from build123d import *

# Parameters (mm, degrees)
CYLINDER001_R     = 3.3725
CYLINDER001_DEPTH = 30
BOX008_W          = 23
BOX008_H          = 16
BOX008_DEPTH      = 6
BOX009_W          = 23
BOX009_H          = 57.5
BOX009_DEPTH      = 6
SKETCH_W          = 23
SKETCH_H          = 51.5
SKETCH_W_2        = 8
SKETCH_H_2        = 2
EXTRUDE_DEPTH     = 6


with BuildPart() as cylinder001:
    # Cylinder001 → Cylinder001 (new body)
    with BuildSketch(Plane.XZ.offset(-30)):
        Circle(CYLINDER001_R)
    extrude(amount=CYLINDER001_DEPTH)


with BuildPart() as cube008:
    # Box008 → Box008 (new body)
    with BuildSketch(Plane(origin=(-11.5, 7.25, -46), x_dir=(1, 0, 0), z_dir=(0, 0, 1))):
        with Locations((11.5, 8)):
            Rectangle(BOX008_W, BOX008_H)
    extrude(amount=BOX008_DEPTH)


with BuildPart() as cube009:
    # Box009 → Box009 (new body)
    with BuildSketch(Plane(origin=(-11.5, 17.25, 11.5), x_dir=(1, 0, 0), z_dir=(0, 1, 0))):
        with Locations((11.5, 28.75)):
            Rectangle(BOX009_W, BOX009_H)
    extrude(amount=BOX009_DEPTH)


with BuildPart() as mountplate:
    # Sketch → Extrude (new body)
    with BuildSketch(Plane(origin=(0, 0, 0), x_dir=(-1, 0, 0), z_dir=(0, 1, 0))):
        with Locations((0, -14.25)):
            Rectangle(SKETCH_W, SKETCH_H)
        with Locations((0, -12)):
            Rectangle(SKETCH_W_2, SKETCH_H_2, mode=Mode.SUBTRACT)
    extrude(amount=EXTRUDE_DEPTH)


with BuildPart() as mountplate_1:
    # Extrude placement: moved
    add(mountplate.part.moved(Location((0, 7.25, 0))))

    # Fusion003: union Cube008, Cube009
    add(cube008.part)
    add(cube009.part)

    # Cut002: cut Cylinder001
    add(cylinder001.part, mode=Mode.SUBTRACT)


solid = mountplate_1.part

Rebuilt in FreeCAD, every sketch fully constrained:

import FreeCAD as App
import Part
import Sketcher
from FreeCAD import Vector


def add_polygon(sketch, points):
    """Adds a closed chain of lines whose ends are joined by coincident constraints."""
    first, n = sketch.GeometryCount, len(points)
    for a, b in zip(points, points[1:] + points[:1]):
        sketch.addGeometry(Part.LineSegment(App.Vector(*a, 0), App.Vector(*b, 0)), False)
    for i in range(n):
        sketch.addConstraint(Sketcher.Constraint("Coincident", first + i, 2, first + (i + 1) % n, 1))

doc = App.newDocument("Part")
body = doc.addObject("PartDesign::Body", "Body")

# Sketch on XZ plane
sketch1 = body.newObject("Sketcher::SketchObject", "Sketch")
sketch1.AttachmentSupport = (doc.getObject("XZ_Plane"), [""])
sketch1.MapMode = "FlatFace"
sketch1.AttachmentOffset = App.Placement(Vector(0, 0, -30), App.Rotation())
sketch1.addGeometry(Part.Circle(Vector(0, 0, 0), Vector(0, 0, 1), 3.4), False)
sketch1.addConstraint(Sketcher.Constraint("Coincident", 0, 3, -1, 1))
sketch1.addConstraint(Sketcher.Constraint("Diameter", 0, 6.745))
pad1 = body.newObject("PartDesign::Pad", "Pad")
pad1.Profile = sketch1
pad1.Length = 30
body2 = doc.addObject("PartDesign::Body", "Body001")

# Sketch on XY plane
sketch2 = body2.newObject("Sketcher::SketchObject", "Sketch001")
sketch2.AttachmentSupport = (doc.getObject("XY_Plane001"), [""])
sketch2.MapMode = "FlatFace"
sketch2.AttachmentOffset = App.Placement(Vector(0, 0, -46), App.Rotation())
add_polygon(sketch2, [(-12, 23), (-12, 7), (12, 7), (12, 23)])  # lines 0-3
sketch2.addConstraint(Sketcher.Constraint("Vertical", 0))
sketch2.addConstraint(Sketcher.Constraint("Horizontal", 1))
sketch2.addConstraint(Sketcher.Constraint("Vertical", 2))
sketch2.addConstraint(Sketcher.Constraint("Horizontal", 3))
sketch2.addConstraint(Sketcher.Constraint("DistanceX", 1, 1, 1, 2, 23.0))
sketch2.addConstraint(Sketcher.Constraint("DistanceY", 0, 2, 0, 1, 16.0))
sketch2.addConstraint(Sketcher.Constraint("DistanceX", 0, 2, -1, 1, 11.5))
sketch2.addConstraint(Sketcher.Constraint("DistanceY", -1, 1, 0, 2, 7.25))
pad2 = body2.newObject("PartDesign::Pad", "Pad001")
pad2.Profile = sketch2
pad2.Length = 6
body3 = doc.addObject("PartDesign::Body", "Body002")

# Sketch on XZ plane
sketch3 = body3.newObject("Sketcher::SketchObject", "Sketch002")
sketch3.AttachmentSupport = (doc.getObject("XZ_Plane002"), [""])
sketch3.MapMode = "FlatFace"
sketch3.AttachmentOffset = App.Placement(Vector(0, 0, -17.25), App.Rotation())
add_polygon(sketch3, [(-12, -46), (-12, 12), (12, 12), (12, -46)])  # lines 0-3
sketch3.addConstraint(Sketcher.Constraint("Vertical", 0))
sketch3.addConstraint(Sketcher.Constraint("Horizontal", 1))
sketch3.addConstraint(Sketcher.Constraint("Vertical", 2))
sketch3.addConstraint(Sketcher.Constraint("Horizontal", 3))
sketch3.addConstraint(Sketcher.Constraint("DistanceX", 1, 1, 1, 2, 23.0))
sketch3.addConstraint(Sketcher.Constraint("DistanceY", 0, 1, 0, 2, 57.5))
sketch3.addConstraint(Sketcher.Constraint("DistanceY", 2, 2, -1, 1, 46.0))
sketch3.addConstraint(Sketcher.Constraint("DistanceX", 0, 2, -1, 1, 11.5))
pad3 = body3.newObject("PartDesign::Pad", "Pad002")
pad3.Profile = sketch3
pad3.Length = 6
pad3.Reversed = True
body4 = doc.addObject("PartDesign::Body", "Body003")

# Sketch on XZ plane
sketch4 = body4.newObject("Sketcher::SketchObject", "Sketch003")
sketch4.AttachmentSupport = (doc.getObject("XZ_Plane003"), [""])
sketch4.MapMode = "FlatFace"
add_polygon(sketch4, [(11.5, 11.5), (11.5, -40), (-11.5, -40), (-11.5, 11.5)])  # lines 0-3
add_polygon(sketch4, [(-4, -13), (4, -13), (4, -11), (-4, -11)])  # lines 4-7
sketch4.addConstraint(Sketcher.Constraint("Vertical", 0))
sketch4.addConstraint(Sketcher.Constraint("Horizontal", 1))
sketch4.addConstraint(Sketcher.Constraint("Vertical", 2))
sketch4.addConstraint(Sketcher.Constraint("Horizontal", 3))
sketch4.addConstraint(Sketcher.Constraint("Horizontal", 4))
sketch4.addConstraint(Sketcher.Constraint("Vertical", 5))
sketch4.addConstraint(Sketcher.Constraint("Horizontal", 6))
sketch4.addConstraint(Sketcher.Constraint("Vertical", 7))
sketch4.addConstraint(Sketcher.Constraint("DistanceX", 1, 2, 1, 1, 23.0))
sketch4.addConstraint(Sketcher.Constraint("DistanceX", 4, 1, 4, 2, 8.0))
sketch4.addConstraint(Sketcher.Constraint("DistanceY", 5, 1, 5, 2, 2.0))
sketch4.addConstraint(Sketcher.Constraint("DistanceY", 0, 2, 0, 1, 51.5))
sketch4.addConstraint(Sketcher.Constraint("DistanceY", 0, 2, -1, 1, 40.0))
sketch4.addConstraint(Sketcher.Constraint("DistanceX", -1, 1, 4, 2, 4.0))
sketch4.addConstraint(Sketcher.Constraint("DistanceY", 4, 2, -1, 1, 13.0))
sketch4.addConstraint(Sketcher.Constraint("DistanceX", -1, 1, 0, 2, 11.5))
pad4 = body4.newObject("PartDesign::Pad", "Pad003")
pad4.Profile = sketch4
pad4.Length = 6
pad4.Reversed = True
body5 = doc.addObject("PartDesign::Body", "Body004")
doc.recompute()

body4.Placement = App.Placement(Vector(0, 7.25, 0), App.Rotation(Vector(0, 0, 1), 0))
boolean = body5.newObject("PartDesign::Boolean", "Boolean")
boolean.Type = "Fuse"
boolean.addObjects([body4])
doc.recompute()

boolean2 = body5.newObject("PartDesign::Boolean", "Boolean001")
boolean2.Type = "Fuse"
boolean2.addObjects([body2])
doc.recompute()

boolean3 = body5.newObject("PartDesign::Boolean", "Boolean002")
boolean3.Type = "Fuse"
boolean3.addObjects([body3])
doc.recompute()

boolean4 = body5.newObject("PartDesign::Boolean", "Boolean003")
boolean4.Type = "Cut"
boolean4.addObjects([body])

doc.recompute()
